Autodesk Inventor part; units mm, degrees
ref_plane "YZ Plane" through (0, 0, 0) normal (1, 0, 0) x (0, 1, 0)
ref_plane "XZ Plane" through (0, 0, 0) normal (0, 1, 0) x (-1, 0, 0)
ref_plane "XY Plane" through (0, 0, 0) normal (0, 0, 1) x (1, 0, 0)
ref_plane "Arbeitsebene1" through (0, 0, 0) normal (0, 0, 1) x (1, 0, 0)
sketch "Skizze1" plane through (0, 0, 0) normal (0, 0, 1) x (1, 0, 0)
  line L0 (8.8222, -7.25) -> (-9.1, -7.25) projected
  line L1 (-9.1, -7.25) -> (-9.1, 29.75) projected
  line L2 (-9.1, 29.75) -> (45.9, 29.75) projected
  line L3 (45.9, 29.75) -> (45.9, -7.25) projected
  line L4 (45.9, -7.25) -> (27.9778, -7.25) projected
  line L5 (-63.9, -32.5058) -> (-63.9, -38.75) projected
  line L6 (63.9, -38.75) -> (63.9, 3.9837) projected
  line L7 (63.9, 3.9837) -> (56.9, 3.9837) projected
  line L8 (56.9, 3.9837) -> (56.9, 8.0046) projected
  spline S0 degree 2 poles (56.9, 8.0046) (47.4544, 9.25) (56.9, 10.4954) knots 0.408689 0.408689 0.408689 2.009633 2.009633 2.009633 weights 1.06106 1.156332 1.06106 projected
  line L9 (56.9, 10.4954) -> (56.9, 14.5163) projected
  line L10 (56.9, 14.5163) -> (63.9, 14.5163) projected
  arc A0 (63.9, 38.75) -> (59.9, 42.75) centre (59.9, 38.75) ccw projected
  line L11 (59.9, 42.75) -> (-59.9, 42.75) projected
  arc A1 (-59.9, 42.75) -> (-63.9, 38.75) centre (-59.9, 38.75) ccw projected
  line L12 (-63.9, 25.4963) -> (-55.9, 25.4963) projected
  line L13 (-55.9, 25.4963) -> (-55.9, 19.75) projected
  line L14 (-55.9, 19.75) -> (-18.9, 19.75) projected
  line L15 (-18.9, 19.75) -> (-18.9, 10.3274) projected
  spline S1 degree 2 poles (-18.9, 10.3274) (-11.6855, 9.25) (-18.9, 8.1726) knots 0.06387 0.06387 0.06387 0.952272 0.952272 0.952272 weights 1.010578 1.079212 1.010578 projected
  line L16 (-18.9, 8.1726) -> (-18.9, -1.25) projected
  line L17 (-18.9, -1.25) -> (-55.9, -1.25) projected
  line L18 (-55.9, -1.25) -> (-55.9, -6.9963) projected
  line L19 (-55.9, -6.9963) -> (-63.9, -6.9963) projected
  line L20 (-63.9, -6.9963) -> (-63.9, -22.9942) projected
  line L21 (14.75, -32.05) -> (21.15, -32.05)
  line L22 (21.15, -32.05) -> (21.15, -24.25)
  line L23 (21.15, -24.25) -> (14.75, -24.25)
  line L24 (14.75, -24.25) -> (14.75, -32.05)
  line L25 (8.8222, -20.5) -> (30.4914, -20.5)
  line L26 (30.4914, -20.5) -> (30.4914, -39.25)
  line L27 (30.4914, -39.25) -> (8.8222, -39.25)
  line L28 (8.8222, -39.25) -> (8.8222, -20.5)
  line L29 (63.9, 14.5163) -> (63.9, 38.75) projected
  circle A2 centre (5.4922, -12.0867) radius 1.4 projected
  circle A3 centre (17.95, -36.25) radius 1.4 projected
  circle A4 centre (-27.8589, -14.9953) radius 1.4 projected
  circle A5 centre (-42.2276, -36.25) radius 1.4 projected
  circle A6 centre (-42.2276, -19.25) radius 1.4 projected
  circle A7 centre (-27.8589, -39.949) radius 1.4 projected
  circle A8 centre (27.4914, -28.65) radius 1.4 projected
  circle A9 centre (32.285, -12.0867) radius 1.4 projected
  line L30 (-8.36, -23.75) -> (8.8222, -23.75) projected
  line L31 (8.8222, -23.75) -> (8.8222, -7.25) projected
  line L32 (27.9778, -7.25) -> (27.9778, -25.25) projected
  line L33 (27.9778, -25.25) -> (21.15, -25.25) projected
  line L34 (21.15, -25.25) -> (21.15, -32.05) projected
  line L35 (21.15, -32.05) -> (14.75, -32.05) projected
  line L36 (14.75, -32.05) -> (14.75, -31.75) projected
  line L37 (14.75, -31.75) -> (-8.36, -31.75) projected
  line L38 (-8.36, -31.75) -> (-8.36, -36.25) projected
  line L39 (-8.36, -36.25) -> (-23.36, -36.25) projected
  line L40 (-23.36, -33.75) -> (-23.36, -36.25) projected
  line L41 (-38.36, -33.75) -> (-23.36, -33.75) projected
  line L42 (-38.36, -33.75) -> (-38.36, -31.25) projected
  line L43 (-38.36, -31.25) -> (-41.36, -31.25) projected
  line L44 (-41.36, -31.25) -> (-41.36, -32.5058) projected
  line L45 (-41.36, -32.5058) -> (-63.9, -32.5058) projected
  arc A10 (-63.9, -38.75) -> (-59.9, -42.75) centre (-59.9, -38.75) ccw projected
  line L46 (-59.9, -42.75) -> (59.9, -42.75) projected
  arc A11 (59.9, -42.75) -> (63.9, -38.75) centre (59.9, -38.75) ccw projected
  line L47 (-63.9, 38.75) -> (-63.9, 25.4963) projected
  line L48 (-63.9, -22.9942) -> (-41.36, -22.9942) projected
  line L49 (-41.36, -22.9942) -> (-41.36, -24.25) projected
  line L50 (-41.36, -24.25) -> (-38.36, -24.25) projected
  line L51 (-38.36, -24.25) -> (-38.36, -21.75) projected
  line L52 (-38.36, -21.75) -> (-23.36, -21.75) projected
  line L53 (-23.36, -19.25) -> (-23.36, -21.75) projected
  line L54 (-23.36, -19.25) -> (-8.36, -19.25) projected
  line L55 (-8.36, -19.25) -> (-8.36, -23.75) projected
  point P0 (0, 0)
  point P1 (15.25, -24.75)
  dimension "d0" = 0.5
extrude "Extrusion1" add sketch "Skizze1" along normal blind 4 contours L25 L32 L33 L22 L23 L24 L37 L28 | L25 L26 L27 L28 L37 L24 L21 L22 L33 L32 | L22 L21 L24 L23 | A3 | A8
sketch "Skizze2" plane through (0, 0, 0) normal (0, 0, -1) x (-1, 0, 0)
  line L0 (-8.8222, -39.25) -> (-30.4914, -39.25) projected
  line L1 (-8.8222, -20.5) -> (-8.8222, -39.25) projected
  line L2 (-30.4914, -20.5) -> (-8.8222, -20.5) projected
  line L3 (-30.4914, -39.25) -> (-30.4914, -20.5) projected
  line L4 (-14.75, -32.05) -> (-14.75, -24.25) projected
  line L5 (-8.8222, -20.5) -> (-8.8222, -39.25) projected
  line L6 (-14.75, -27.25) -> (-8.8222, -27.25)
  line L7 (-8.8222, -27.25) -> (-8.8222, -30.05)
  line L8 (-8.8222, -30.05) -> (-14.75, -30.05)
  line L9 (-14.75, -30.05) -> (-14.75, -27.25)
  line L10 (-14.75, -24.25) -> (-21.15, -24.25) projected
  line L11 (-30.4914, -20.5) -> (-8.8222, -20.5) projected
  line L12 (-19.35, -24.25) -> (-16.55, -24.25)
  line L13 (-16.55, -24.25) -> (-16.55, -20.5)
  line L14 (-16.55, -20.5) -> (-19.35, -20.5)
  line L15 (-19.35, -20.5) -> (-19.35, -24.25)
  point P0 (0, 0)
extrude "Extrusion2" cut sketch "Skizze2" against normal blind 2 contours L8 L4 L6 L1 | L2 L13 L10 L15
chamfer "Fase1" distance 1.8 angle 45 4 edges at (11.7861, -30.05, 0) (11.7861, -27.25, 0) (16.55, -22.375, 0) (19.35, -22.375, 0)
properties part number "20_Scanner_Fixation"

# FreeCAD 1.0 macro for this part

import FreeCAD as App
import Part
import Sketcher

V = App.Vector
Q = App.Units.Quantity


def edges_at(feature, points):
    """Names of the edges that pass closest to the given points."""
    edges = feature.Shape.Edges
    near = lambda p: min(range(len(edges)), key=lambda i: edges[i].distToShape(Part.Vertex(*p))[0])
    return sorted({f"Edge{near(p) + 1}" for p in points})

doc = App.newDocument("Part")
body = doc.addObject("PartDesign::Body", "Body")

# Sketch on XY plane
sketch1 = body.newObject("Sketcher::SketchObject", "Sketch")
sketch1.AttachmentSupport = (doc.getObject("XY_Plane"), [""])
sketch1.MapMode = "FlatFace"
sketch1.addGeometry([
    Part.LineSegment(V(9, -20, 0), V(9, -39, 0)),
    Part.LineSegment(V(9, -39, 0), V(30, -39, 0)),
    Part.LineSegment(V(30, -39, 0), V(30, -20, 0)),
    Part.LineSegment(V(30, -20, 0), V(9, -20, 0)),
], False)
sketch1.addConstraint([
    Sketcher.Constraint("Coincident", 0, 2, 1, 1),
    Sketcher.Constraint("Coincident", 1, 2, 2, 1),
    Sketcher.Constraint("Coincident", 2, 2, 3, 1),
    Sketcher.Constraint("Coincident", 3, 2, 0, 1),
    Sketcher.Constraint("Vertical", 0),
    Sketcher.Constraint("Horizontal", 1),
    Sketcher.Constraint("Vertical", 2),
    Sketcher.Constraint("Horizontal", 3),
    Sketcher.Constraint("DistanceY", 0, 2, 0, 1, Q("18.75 mm")),
    Sketcher.Constraint("DistanceY", 2, 2, -1, 1, Q("20.5 mm")),
    Sketcher.Constraint("DistanceX", 1, 1, 1, 2, Q("21.6692 mm")),
    Sketcher.Constraint("DistanceX", -1, 1, 0, 2, Q("8.8222 mm")),
])
pad1 = body.newObject("PartDesign::Pad", "Pad")
pad1.Profile = sketch1
pad1.Length = 4

# Sketch on XY plane
sketch2 = body.newObject("Sketcher::SketchObject", "Sketch001")
sketch2.AttachmentSupport = (doc.getObject("XY_Plane"), [""])
sketch2.MapMode = "FlatFace"
sketch2.addGeometry([
    Part.LineSegment(V(14.8, -30.1, 0), V(8.8, -30.1, 0)),  # 0
    Part.LineSegment(V(8.8, -30.1, 0), V(8.8, -27.2, 0)),  # 1
    Part.LineSegment(V(8.8, -27.2, 0), V(14.8, -27.2, 0)),  # 2
    Part.LineSegment(V(14.8, -27.2, 0), V(14.8, -30.1, 0)),  # 3
    Part.LineSegment(V(16.6, -20.5, 0), V(19.4, -20.5, 0)),  # 4
    Part.LineSegment(V(19.4, -20.5, 0), V(19.4, -24.2, 0)),  # 5
    Part.LineSegment(V(19.4, -24.2, 0), V(16.6, -24.2, 0)),  # 6
    Part.LineSegment(V(16.6, -24.2, 0), V(16.6, -20.5, 0)),  # 7
], False)
sketch2.addConstraint([
    Sketcher.Constraint("Coincident", 0, 2, 1, 1),
    Sketcher.Constraint("Coincident", 1, 2, 2, 1),
    Sketcher.Constraint("Coincident", 2, 2, 3, 1),
    Sketcher.Constraint("Coincident", 3, 2, 0, 1),
    Sketcher.Constraint("Coincident", 4, 2, 5, 1),
    Sketcher.Constraint("Coincident", 5, 2, 6, 1),
    Sketcher.Constraint("Coincident", 6, 2, 7, 1),
    Sketcher.Constraint("Coincident", 7, 2, 4, 1),
    Sketcher.Constraint("Horizontal", 0),
    Sketcher.Constraint("Vertical", 1),
    Sketcher.Constraint("Horizontal", 2),
    Sketcher.Constraint("Vertical", 3),
    Sketcher.Constraint("Horizontal", 4),
    Sketcher.Constraint("Vertical", 5),
    Sketcher.Constraint("Horizontal", 6),
    Sketcher.Constraint("Vertical", 7),
    Sketcher.Constraint("Equal", 6, 1),
    Sketcher.Constraint("DistanceX", 4, 1, 4, 2, Q("2.8 mm")),
    Sketcher.Constraint("DistanceY", 2, 2, 5, 2, Q("3 mm")),
    Sketcher.Constraint("DistanceY", 5, 2, 5, 1, Q("3.75 mm")),
    Sketcher.Constraint("DistanceY", 4, 2, -1, 1, Q("20.5 mm")),
    Sketcher.Constraint("DistanceX", 2, 2, 4, 2, Q("4.6 mm")),
    Sketcher.Constraint("DistanceX", -1, 1, 2, 2, Q("14.75 mm")),
    Sketcher.Constraint("DistanceX", 0, 2, 0, 1, Q("5.9278 mm")),
])
pocket1 = body.newObject("PartDesign::Pocket", "Pocket")
pocket1.Profile = sketch2
pocket1.Length = 2
pocket1.Reversed = True
doc.recompute()

chamfer = body.newObject("PartDesign::Chamfer", "Chamfer")
chamfer.Base = (pocket1, edges_at(pocket1, [
    (11.786, -30.05, 0),
    (11.786, -27.25, 0),
    (16.55, -22.375, 0),
    (19.35, -22.375, 0),
]))
chamfer.Size = 1.8

doc.recompute()
